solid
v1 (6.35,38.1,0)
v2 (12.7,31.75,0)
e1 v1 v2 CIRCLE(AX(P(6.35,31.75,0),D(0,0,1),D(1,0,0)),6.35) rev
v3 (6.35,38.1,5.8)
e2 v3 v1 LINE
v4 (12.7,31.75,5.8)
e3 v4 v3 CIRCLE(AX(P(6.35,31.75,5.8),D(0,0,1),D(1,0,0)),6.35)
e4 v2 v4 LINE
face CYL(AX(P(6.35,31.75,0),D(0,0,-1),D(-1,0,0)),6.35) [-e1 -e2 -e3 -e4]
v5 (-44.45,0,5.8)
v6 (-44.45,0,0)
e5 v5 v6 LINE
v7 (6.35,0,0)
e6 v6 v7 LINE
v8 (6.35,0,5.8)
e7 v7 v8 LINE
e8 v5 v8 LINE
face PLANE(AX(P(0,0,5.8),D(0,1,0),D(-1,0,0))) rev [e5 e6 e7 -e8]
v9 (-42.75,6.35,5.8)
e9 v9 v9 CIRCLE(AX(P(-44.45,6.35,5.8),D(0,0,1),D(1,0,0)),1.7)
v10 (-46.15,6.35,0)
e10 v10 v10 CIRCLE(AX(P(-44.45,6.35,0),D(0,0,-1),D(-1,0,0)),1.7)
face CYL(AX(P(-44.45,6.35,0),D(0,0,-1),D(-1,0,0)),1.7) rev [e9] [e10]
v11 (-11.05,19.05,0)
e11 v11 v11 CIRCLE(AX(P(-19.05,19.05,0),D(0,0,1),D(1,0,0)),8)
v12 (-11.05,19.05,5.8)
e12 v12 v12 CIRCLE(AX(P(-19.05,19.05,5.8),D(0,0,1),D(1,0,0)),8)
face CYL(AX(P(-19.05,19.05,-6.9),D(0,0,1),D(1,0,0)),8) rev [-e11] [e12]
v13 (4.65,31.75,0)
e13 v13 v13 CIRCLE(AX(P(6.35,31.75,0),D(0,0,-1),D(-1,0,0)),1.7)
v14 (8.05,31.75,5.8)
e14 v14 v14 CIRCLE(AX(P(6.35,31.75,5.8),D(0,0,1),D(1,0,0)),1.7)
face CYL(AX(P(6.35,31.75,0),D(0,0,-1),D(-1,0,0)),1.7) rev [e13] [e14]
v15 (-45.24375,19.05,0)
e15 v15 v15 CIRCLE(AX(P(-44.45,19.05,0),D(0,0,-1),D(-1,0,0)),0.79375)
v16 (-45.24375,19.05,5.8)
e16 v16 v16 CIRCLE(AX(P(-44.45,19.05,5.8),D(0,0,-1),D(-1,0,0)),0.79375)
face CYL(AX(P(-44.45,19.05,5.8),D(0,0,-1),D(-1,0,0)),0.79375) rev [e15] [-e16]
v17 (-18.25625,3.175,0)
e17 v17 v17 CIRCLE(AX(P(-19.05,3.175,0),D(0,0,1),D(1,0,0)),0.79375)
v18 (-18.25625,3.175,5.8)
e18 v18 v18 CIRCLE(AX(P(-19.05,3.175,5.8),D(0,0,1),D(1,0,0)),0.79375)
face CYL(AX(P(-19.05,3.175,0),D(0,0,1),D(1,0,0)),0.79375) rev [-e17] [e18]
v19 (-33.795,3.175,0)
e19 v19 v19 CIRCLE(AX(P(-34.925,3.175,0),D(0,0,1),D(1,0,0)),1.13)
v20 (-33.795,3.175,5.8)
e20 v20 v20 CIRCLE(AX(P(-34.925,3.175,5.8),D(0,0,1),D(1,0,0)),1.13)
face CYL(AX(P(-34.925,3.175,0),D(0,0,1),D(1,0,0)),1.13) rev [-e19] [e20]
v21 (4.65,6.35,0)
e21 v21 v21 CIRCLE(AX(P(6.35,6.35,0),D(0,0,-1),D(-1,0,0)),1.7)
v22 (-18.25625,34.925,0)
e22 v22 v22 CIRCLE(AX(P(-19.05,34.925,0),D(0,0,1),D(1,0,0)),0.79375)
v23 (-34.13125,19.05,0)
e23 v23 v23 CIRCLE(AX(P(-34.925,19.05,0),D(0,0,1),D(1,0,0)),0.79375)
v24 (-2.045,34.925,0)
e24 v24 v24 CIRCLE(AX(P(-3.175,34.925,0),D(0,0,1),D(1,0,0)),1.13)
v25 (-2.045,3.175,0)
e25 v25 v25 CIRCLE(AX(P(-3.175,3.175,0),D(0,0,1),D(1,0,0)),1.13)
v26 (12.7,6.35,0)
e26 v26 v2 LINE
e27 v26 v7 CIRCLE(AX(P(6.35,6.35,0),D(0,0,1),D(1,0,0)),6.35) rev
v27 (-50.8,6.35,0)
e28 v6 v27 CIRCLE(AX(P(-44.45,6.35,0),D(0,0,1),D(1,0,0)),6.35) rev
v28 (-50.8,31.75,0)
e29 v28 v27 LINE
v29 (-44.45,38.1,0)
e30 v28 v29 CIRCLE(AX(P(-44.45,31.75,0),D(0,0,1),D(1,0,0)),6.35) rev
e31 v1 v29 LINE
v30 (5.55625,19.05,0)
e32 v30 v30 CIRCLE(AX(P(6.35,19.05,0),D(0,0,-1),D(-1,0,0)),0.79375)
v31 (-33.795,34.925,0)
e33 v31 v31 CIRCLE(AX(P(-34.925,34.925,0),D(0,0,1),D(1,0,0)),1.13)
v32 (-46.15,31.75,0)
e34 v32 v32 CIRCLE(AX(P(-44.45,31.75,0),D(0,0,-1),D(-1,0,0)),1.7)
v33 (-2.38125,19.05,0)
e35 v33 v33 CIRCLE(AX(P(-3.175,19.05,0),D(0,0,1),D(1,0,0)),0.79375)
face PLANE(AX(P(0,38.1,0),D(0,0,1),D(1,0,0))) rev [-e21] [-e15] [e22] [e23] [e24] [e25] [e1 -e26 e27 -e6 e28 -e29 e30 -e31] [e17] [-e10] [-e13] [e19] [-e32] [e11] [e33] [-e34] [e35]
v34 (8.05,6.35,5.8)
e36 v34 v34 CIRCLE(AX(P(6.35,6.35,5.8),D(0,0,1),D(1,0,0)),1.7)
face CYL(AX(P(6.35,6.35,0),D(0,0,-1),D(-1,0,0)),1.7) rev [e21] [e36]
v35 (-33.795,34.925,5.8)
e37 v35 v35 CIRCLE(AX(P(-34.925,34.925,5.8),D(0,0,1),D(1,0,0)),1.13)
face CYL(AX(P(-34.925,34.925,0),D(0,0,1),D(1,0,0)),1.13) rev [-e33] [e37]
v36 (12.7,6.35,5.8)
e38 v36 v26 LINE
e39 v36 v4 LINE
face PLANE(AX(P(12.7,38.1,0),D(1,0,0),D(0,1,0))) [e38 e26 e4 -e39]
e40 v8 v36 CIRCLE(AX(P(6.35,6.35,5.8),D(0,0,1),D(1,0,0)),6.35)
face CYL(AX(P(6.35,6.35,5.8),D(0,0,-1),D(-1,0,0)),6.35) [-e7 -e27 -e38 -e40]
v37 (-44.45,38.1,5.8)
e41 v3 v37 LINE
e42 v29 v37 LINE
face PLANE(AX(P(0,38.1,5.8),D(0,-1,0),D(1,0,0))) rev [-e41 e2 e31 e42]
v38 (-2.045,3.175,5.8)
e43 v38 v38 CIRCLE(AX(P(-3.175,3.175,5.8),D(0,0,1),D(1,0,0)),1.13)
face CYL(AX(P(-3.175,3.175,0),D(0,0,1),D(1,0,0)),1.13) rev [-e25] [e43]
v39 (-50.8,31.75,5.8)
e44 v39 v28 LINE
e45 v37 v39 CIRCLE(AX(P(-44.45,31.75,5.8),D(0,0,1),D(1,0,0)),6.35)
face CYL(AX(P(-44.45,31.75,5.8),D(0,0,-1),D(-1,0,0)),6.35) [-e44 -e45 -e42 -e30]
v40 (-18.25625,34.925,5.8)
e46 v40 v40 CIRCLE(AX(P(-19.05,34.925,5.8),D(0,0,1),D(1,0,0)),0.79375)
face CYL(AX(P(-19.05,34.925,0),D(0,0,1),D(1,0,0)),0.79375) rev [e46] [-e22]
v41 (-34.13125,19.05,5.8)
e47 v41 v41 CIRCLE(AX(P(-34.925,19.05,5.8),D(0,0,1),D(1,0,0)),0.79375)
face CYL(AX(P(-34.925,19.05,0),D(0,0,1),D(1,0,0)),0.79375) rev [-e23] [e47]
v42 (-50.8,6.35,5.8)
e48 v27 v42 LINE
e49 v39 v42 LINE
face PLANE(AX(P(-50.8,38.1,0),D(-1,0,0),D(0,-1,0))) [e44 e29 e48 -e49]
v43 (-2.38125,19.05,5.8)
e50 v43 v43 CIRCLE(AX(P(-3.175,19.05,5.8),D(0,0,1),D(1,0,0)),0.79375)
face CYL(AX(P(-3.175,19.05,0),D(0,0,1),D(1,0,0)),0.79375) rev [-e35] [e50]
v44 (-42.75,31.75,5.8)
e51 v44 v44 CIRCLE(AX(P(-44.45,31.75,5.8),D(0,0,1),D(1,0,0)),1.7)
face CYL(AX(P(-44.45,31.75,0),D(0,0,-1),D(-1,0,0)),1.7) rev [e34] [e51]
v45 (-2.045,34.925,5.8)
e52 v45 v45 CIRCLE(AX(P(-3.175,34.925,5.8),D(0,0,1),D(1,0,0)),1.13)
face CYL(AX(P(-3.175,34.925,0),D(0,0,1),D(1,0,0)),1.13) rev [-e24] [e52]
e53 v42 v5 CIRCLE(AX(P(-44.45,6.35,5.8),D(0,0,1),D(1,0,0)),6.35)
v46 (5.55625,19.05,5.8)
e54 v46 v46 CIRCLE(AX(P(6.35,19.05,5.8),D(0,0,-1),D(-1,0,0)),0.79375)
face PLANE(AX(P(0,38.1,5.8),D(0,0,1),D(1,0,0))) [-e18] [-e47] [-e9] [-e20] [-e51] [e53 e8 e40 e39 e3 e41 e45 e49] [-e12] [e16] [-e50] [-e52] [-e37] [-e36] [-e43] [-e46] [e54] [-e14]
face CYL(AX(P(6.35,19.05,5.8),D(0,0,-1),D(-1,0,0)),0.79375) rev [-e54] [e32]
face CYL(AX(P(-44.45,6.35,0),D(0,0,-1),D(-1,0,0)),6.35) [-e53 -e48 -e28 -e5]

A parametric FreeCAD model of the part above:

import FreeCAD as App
import Part
import Sketcher
Q = App.Units.Quantity


def edges_at(feature, points):
    """Names of the edges that pass closest to the given points."""
    edges = feature.Shape.Edges
    near = lambda p: min(range(len(edges)), key=lambda i: edges[i].distToShape(Part.Vertex(*p))[0])
    return sorted({f"Edge{near(p) + 1}" for p in points})


def add_polygon(sketch, points):
    """Adds a closed chain of lines whose ends are joined by coincident constraints."""
    first, n = sketch.GeometryCount, len(points)
    for a, b in zip(points, points[1:] + points[:1]):
        sketch.addGeometry(Part.LineSegment(App.Vector(*a, 0), App.Vector(*b, 0)), False)
    for i in range(n):
        sketch.addConstraint(Sketcher.Constraint("Coincident", first + i, 2, first + (i + 1) % n, 1))

doc = App.newDocument("Part")
body = doc.addObject("PartDesign::Body", "Body")

# Sketch on XY plane
sketch1 = body.newObject("Sketcher::SketchObject", "Sketch")
sketch1.AttachmentSupport = (doc.getObject("XY_Plane"), [""])
sketch1.MapMode = "FlatFace"
add_polygon(sketch1, [(-38, 38), (-38, 0), (0, 0), (0, 38)])  # lines 0-3
sketch1.addConstraint([
    Sketcher.Constraint("Vertical", 0),
    Sketcher.Constraint("Horizontal", 1),
    Sketcher.Constraint("Vertical", 2),
    Sketcher.Constraint("Horizontal", 3),
    Sketcher.Constraint("Coincident", 1, 2, -1, 1),
    Sketcher.Constraint("Equal", 3, 0),
    Sketcher.Constraint("DistanceX", 1, 1, 1, 2, Q("38.1 mm")),
])
pad1 = body.newObject("PartDesign::Pad", "Pad")
pad1.Profile = sketch1
pad1.Length = 5.8

# Sketch on XY plane
sketch2 = body.newObject("Sketcher::SketchObject", "Sketch001")
sketch2.AttachmentSupport = (doc.getObject("XY_Plane"), [""])
sketch2.MapMode = "FlatFace"
sketch2.AttachmentOffset = App.Placement(App.Vector(0, 0, 5.8), App.Rotation())
sketch2.addGeometry(Part.Circle(App.Vector(-19, 19, 0), App.Vector(0, 0, 1), 8), False)
sketch2.addConstraint([
    Sketcher.Constraint("Diameter", 0, Q("16 mm")),
    Sketcher.Constraint("DistanceX", 0, 3, -1, 1, Q("19.05 mm")),
    Sketcher.Constraint("DistanceY", -1, 1, 0, 3, Q("19.05 mm")),
])
pocket1 = body.newObject("PartDesign::Pocket", "Pocket")
pocket1.Profile = sketch2
pocket1.Length = 12.7

# Sketch on XY plane
sketch3 = body.newObject("Sketcher::SketchObject", "Sketch002")
sketch3.AttachmentSupport = (doc.getObject("XY_Plane"), [""])
sketch3.MapMode = "FlatFace"
sketch3.AttachmentOffset = App.Placement(App.Vector(0, 0, 5.8), App.Rotation())
sketch3.addGeometry([
    Part.Circle(App.Vector(-34.9, 34.9, 0), App.Vector(0, 0, 1), 1.1),
    Part.Circle(App.Vector(-3.2, 34.9, 0), App.Vector(0, 0, 1), 1.1),
    Part.Circle(App.Vector(-3.2, 3.2, 0), App.Vector(0, 0, 1), 1.1),
    Part.Circle(App.Vector(-34.9, 3.2, 0), App.Vector(0, 0, 1), 1.1),
], False)
sketch3.addConstraint([
    Sketcher.Constraint("Equal", 0, 1),
    Sketcher.Constraint("Equal", 1, 2),
    Sketcher.Constraint("Equal", 2, 3),
    Sketcher.Constraint("Horizontal", 0, 3, 1, 3),
    Sketcher.Constraint("Horizontal", 2, 3, 3, 3),
    Sketcher.Constraint("Vertical", 1, 3, 2, 3),
    Sketcher.Constraint("Vertical", 0, 3, 3, 3),
    Sketcher.Constraint("Diameter", 0, Q("2.26 mm")),
    Sketcher.Constraint("DistanceX", 0, 3, 1, 3, Q("31.75 mm")),
    Sketcher.Constraint("DistanceY", 2, 3, 1, 3, Q("31.75 mm")),
    Sketcher.Constraint("DistanceX", 0, 3, -1, 1, Q("34.925 mm")),
    Sketcher.Constraint("DistanceY", -1, 1, 0, 3, Q("34.925 mm")),
])
pocket2 = body.newObject("PartDesign::Pocket", "Pocket001")
pocket2.Profile = sketch3
pocket2.Type = "ThroughAll"

# Sketch on XY plane
sketch4 = body.newObject("Sketcher::SketchObject", "Sketch003")
sketch4.AttachmentSupport = (doc.getObject("XY_Plane"), [""])
sketch4.MapMode = "FlatFace"
sketch4.AttachmentOffset = App.Placement(App.Vector(0, 0, 5.8), App.Rotation())
sketch4.addGeometry([
    Part.Circle(App.Vector(-34.9, 19.1, 0), App.Vector(0, 0, 1), 0.8),
    Part.Circle(App.Vector(-19.1, 34.9, 0), App.Vector(0, 0, 1), 0.8),
    Part.Circle(App.Vector(-3.2, 19.1, 0), App.Vector(0, 0, 1), 0.8),
    Part.Circle(App.Vector(-19.1, 3.2, 0), App.Vector(0, 0, 1), 0.8),
], False)
sketch4.addConstraint([
    Sketcher.Constraint("Equal", 0, 1),
    Sketcher.Constraint("Equal", 1, 2),
    Sketcher.Constraint("Equal", 2, 3),
    Sketcher.Constraint("Horizontal", 0, 3, 2, 3),
    Sketcher.Constraint("Vertical", 1, 3, 3, 3),
    Sketcher.Constraint("Diameter", 0, Q("1.5875 mm")),
    Sketcher.Constraint("DistanceY", -1, 1, 0, 3, Q("19.05 mm")),
    Sketcher.Constraint("DistanceX", 1, 3, -1, 1, Q("19.05 mm")),
    Sketcher.Constraint("DistanceX", 0, 3, 2, 3, Q("31.75 mm")),
    Sketcher.Constraint("DistanceY", 3, 3, 1, 3, Q("31.75 mm")),
    Sketcher.Constraint("DistanceX", 0, 3, -1, 1, Q("34.925 mm")),
    Sketcher.Constraint("DistanceY", -1, 1, 1, 3, Q("34.925 mm")),
])
pocket3 = body.newObject("PartDesign::Pocket", "Pocket002")
pocket3.Profile = sketch4
pocket3.Type = "ThroughAll"

# Sketch on XY plane
sketch5 = body.newObject("Sketcher::SketchObject", "Sketch004")
sketch5.AttachmentSupport = (doc.getObject("XY_Plane"), [""])
sketch5.MapMode = "FlatFace"
sketch5.AttachmentOffset = App.Placement(App.Vector(0, 0, 5.8), App.Rotation())
add_polygon(sketch5, [(-51, 38), (-51, 0), (-38, 0), (-38, 38)])  # lines 0-3
add_polygon(sketch5, [(0, 38), (0, 0), (13, 0), (13, 38)])  # lines 4-7
sketch5.addConstraint([
    Sketcher.Constraint("Vertical", 0),
    Sketcher.Constraint("Horizontal", 1),
    Sketcher.Constraint("Vertical", 2),
    Sketcher.Constraint("Horizontal", 3),
    Sketcher.Constraint("Vertical", 4),
    Sketcher.Constraint("Horizontal", 5),
    Sketcher.Constraint("Vertical", 6),
    Sketcher.Constraint("Horizontal", 7),
    Sketcher.Constraint("Coincident", 4, 2, -1, 1),
    Sketcher.Constraint("PointOnObject", 0, 2, -1),
    Sketcher.Constraint("Horizontal", 3, 2, 6, 2),
    Sketcher.Constraint("Equal", 3, 5),
    Sketcher.Constraint("DistanceX", 1, 1, 1, 2, Q("12.7 mm")),
    Sketcher.Constraint("DistanceY", 0, 2, 0, 1, Q("38.1 mm")),
    Sketcher.Constraint("DistanceX", 0, 2, -1, 1, Q("50.8 mm")),
])
pad2 = body.newObject("PartDesign::Pad", "Pad001")
pad2.Profile = sketch5
pad2.Length = 5.8
pad2.Reversed = True

# Sketch on XY plane
sketch6 = body.newObject("Sketcher::SketchObject", "Sketch005")
sketch6.AttachmentSupport = (doc.getObject("XY_Plane"), [""])
sketch6.MapMode = "FlatFace"
sketch6.addGeometry([
    Part.Circle(App.Vector(6.3, 31.8, 0), App.Vector(0, 0, 1), 1.7),
    Part.Circle(App.Vector(-44.5, 31.8, 0), App.Vector(0, 0, 1), 1.7),
    Part.Circle(App.Vector(-44.5, 6.3, 0), App.Vector(0, 0, 1), 1.7),
    Part.Circle(App.Vector(6.3, 6.3, 0), App.Vector(0, 0, 1), 1.7),
], False)
sketch6.addConstraint([
    Sketcher.Constraint("Equal", 0, 1),
    Sketcher.Constraint("Equal", 1, 2),
    Sketcher.Constraint("Equal", 2, 3),
    Sketcher.Constraint("Horizontal", 0, 3, 1, 3),
    Sketcher.Constraint("Horizontal", 2, 3, 3, 3),
    Sketcher.Constraint("Vertical", 1, 3, 2, 3),
    Sketcher.Constraint("Vertical", 0, 3, 3, 3),
    Sketcher.Constraint("Diameter", 0, Q("3.4 mm")),
    Sketcher.Constraint("DistanceX", 1, 3, 0, 3, Q("50.8 mm")),
    Sketcher.Constraint("DistanceY", 2, 3, 1, 3, Q("25.4 mm")),
    Sketcher.Constraint("DistanceX", -1, 1, 0, 3, Q("6.35 mm")),
    Sketcher.Constraint("DistanceY", -1, 1, 0, 3, Q("31.75 mm")),
])
doc.recompute()
hole = body.newObject("PartDesign::Hole", "Hole")
hole.Profile = sketch6
hole.ThreadType = "None"
hole.Diameter = 3.4
hole.DepthType = "Dimension"
hole.Depth = 10
hole.DrillPoint = "Angled"
hole.DrillPointAngle = 118
hole.Reversed = True

# Sketch on XY plane
sketch7 = body.newObject("Sketcher::SketchObject", "Sketch006")
sketch7.AttachmentSupport = (doc.getObject("XY_Plane"), [""])
sketch7.MapMode = "FlatFace"
sketch7.addGeometry([
    Part.Circle(App.Vector(6.3, 19.1, 0), App.Vector(0, 0, 1), 0.8),
    Part.Circle(App.Vector(-44.5, 19.1, 0), App.Vector(0, 0, 1), 0.8),
], False)
sketch7.addConstraint([
    Sketcher.Constraint("Equal", 0, 1),
    Sketcher.Constraint("Horizontal", 0, 3, 1, 3),
    Sketcher.Constraint("Diameter", 0, Q("1.5875 mm")),
    Sketcher.Constraint("DistanceX", 1, 3, 0, 3, Q("50.8 mm")),
    Sketcher.Constraint("DistanceX", -1, 1, 0, 3, Q("6.35 mm")),
    Sketcher.Constraint("DistanceY", -1, 1, 0, 3, Q("19.05 mm")),
])
pocket4 = body.newObject("PartDesign::Pocket", "Pocket003")
pocket4.Profile = sketch7
pocket4.Type = "ThroughAll"
pocket4.Reversed = True
doc.recompute()

fillet = body.newObject("PartDesign::Fillet", "Fillet")
fillet.Base = (pocket4, edges_at(pocket4, [
    (-50.8, 0, 2.9),
    (-50.8, 38.1, 2.9),
    (12.7, 38.1, 2.9),
    (12.7, 0, 2.9),
]))
fillet.Radius = 6.35

doc.recompute()
